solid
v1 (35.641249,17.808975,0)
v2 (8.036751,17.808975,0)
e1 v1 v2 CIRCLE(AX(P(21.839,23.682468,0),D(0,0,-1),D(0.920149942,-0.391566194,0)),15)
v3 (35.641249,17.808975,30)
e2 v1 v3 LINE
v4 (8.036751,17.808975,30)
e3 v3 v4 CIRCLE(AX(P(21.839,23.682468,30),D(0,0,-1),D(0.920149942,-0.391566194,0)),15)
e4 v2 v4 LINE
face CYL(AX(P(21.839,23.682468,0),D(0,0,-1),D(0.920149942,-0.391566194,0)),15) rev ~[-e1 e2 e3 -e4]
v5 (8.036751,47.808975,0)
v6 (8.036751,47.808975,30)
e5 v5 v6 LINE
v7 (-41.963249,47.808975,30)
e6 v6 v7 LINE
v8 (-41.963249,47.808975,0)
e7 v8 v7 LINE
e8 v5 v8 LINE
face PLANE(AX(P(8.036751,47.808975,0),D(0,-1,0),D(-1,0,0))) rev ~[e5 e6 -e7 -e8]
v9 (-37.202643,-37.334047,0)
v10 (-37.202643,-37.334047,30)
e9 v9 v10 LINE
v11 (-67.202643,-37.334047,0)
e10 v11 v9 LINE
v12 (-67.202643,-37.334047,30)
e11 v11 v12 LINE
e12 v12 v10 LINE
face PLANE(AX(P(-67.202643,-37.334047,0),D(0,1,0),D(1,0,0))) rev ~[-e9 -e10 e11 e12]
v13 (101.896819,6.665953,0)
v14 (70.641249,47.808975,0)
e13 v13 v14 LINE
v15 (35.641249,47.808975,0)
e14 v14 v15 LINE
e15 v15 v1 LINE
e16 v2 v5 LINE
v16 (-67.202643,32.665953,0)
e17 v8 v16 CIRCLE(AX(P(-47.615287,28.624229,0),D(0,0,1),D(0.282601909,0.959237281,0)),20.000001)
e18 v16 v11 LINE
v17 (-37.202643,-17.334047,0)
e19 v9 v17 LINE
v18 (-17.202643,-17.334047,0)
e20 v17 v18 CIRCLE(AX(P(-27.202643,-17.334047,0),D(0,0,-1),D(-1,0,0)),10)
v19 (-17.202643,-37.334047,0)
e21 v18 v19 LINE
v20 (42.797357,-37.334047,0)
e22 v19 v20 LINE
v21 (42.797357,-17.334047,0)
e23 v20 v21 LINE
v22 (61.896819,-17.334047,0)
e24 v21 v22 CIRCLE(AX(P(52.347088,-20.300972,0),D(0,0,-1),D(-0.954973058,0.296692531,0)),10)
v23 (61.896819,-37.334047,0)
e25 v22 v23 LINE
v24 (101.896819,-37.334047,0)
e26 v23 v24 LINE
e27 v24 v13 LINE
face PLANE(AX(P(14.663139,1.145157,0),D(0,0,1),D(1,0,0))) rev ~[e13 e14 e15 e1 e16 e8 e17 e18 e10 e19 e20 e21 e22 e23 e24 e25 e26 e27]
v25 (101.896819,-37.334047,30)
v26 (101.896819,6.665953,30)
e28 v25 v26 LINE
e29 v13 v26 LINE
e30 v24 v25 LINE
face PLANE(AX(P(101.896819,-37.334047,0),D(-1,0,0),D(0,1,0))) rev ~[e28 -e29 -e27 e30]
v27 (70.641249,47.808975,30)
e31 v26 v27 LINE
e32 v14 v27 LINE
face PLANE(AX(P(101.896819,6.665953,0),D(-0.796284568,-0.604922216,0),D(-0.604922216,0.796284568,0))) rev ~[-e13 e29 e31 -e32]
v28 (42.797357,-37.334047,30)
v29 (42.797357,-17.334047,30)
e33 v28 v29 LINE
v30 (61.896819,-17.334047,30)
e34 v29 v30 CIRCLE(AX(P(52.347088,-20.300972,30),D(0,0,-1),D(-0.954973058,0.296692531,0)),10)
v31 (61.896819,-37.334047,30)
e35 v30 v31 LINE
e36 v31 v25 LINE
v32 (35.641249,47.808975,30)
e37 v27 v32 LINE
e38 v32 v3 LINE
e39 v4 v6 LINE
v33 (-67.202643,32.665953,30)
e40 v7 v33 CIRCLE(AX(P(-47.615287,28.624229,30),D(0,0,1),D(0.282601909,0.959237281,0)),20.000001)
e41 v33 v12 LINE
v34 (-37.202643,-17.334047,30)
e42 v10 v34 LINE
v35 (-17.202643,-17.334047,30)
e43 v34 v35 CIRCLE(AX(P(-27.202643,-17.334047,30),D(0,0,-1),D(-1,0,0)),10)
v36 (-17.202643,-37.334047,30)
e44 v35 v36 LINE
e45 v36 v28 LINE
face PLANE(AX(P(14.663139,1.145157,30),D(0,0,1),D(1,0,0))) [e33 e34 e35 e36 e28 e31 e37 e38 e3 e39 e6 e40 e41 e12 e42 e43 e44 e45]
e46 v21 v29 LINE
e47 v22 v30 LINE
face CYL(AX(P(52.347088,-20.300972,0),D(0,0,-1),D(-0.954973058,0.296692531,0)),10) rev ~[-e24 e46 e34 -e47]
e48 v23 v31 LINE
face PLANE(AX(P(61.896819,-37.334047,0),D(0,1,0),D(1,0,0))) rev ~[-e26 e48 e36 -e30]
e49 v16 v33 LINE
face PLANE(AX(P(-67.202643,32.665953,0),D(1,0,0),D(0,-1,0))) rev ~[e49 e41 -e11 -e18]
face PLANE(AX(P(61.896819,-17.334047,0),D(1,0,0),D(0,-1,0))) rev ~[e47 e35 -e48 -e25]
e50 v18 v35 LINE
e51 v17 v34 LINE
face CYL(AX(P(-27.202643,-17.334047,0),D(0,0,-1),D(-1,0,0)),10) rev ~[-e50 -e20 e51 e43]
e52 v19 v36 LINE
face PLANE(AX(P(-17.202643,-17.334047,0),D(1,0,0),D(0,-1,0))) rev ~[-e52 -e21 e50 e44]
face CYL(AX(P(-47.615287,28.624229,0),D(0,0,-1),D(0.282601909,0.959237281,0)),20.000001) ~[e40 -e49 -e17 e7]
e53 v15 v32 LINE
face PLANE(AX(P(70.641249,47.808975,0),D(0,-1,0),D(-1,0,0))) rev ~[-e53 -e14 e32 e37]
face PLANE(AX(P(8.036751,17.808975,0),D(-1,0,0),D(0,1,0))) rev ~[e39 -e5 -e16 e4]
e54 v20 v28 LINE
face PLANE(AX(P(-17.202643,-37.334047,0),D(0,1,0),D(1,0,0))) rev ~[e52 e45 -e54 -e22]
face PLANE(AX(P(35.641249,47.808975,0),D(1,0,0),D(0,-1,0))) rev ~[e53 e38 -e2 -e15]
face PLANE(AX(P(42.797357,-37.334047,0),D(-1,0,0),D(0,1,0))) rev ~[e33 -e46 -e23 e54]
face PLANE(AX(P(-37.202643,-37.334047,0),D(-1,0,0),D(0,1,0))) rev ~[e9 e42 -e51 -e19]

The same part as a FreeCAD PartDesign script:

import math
import FreeCAD as App
import Part
import Sketcher

V = App.Vector

doc = App.newDocument("Part")
body = doc.addObject("PartDesign::Body", "Body")

# Sketch on XY plane
sketch1 = body.newObject("Sketcher::SketchObject", "Sketch")
sketch1.AttachmentSupport = (doc.getObject("XY_Plane"), [""])
sketch1.MapMode = "FlatFace"
sketch1.addGeometry([
    Part.LineSegment(V(8, 48, 0), V(-42, 48, 0)),  # 0
    Part.ArcOfCircle(Part.Circle(V(-48, 29, 0), V(0, 0, 1), 20), math.radians(74), math.radians(168)),  # 1
    Part.LineSegment(V(-67, 33, 0), V(-67, -37, 0)),  # 2
    Part.LineSegment(V(-67, -37, 0), V(-37, -37, 0)),  # 3
    Part.LineSegment(V(-37, -37, 0), V(-37, -17, 0)),  # 4
    Part.ArcOfCircle(Part.Circle(V(-27, -17, 0), V(0, 0, 1), 10), math.radians(0), math.radians(180)),  # 5
    Part.LineSegment(V(-17, -17, 0), V(-17, -37, 0)),  # 6
    Part.LineSegment(V(-17, -37, 0), V(43, -37, 0)),  # 7
    Part.LineSegment(V(43, -37, 0), V(43, -17, 0)),  # 8
    Part.ArcOfCircle(Part.Circle(V(52, -20, 0), V(0, 0, 1), 10), math.radians(17), math.radians(163)),  # 9
    Part.LineSegment(V(62, -17, 0), V(62, -37, 0)),  # 10
    Part.LineSegment(V(62, -37, 0), V(102, -37, 0)),  # 11
    Part.LineSegment(V(102, -37, 0), V(102, 7, 0)),  # 12
    Part.LineSegment(V(102, 7, 0), V(71, 48, 0)),  # 13
    Part.LineSegment(V(71, 48, 0), V(36, 48, 0)),  # 14
    Part.LineSegment(V(36, 48, 0), V(36, 18, 0)),  # 15
    Part.ArcOfCircle(Part.Circle(V(22, 24, 0), V(0, 0, 1), 15), math.radians(-157), math.radians(-23)),  # 16
    Part.LineSegment(V(8, 18, 0), V(8, 48, 0)),  # 17
], False)
sketch1.addConstraint([
    Sketcher.Constraint("Coincident", 0, 2, 1, 1),
    Sketcher.Constraint("Coincident", 1, 2, 2, 1),
    Sketcher.Constraint("Coincident", 2, 2, 3, 1),
    Sketcher.Constraint("Coincident", 3, 2, 4, 1),
    Sketcher.Constraint("Tangent", 4, 2, 5, 2),
    Sketcher.Constraint("Tangent", 5, 1, 6, 1),
    Sketcher.Constraint("Coincident", 6, 2, 7, 1),
    Sketcher.Constraint("Coincident", 7, 2, 8, 1),
    Sketcher.Constraint("Coincident", 8, 2, 9, 2),
    Sketcher.Constraint("Coincident", 9, 1, 10, 1),
    Sketcher.Constraint("Coincident", 10, 2, 11, 1),
    Sketcher.Constraint("Coincident", 11, 2, 12, 1),
    Sketcher.Constraint("Coincident", 12, 2, 13, 1),
    Sketcher.Constraint("Coincident", 13, 2, 14, 1),
    Sketcher.Constraint("Coincident", 14, 2, 15, 1),
    Sketcher.Constraint("Coincident", 15, 2, 16, 2),
    Sketcher.Constraint("Coincident", 16, 1, 17, 1),
    Sketcher.Constraint("Coincident", 17, 2, 0, 1),
    Sketcher.Constraint("Horizontal", 0),
    Sketcher.Constraint("Vertical", 2),
    Sketcher.Constraint("Horizontal", 3),
    Sketcher.Constraint("Vertical", 4),
    Sketcher.Constraint("Vertical", 6),
    Sketcher.Constraint("Horizontal", 7),
    Sketcher.Constraint("Vertical", 8),
    Sketcher.Constraint("Vertical", 10),
    Sketcher.Constraint("Horizontal", 11),
    Sketcher.Constraint("Vertical", 12),
    Sketcher.Constraint("Horizontal", 14),
    Sketcher.Constraint("Vertical", 15),
    Sketcher.Constraint("Vertical", 17),
    Sketcher.Constraint("Equal", 5, 9),
    Sketcher.Constraint("Horizontal", 3, 2, 6, 2),
    Sketcher.Constraint("Horizontal", 5, 1, 8, 2),
    Sketcher.Constraint("Horizontal", 8, 2, 9, 1),
    Sketcher.Constraint("Horizontal", 7, 2, 10, 2),
    Sketcher.Constraint("Horizontal", 0, 2, 13, 2),
    Sketcher.Constraint("Horizontal", 15, 2, 16, 1),
    Sketcher.Constraint("Equal", 3, 15),
    Sketcher.Constraint("Radius", 1, 20.000001),
    Sketcher.Constraint("Radius", 5, 10.0),
    Sketcher.Constraint("Radius", 16, 15.0),
    Sketcher.Constraint("DistanceX", 0, 2, 0, 1, 50.0),
    Sketcher.Constraint("DistanceX", 3, 1, 3, 2, 30.0),
    Sketcher.Constraint("DistanceX", 7, 1, 7, 2, 60.0),
    Sketcher.Constraint("DistanceX", 11, 1, 11, 2, 40.0),
    Sketcher.Constraint("DistanceX", 14, 2, 14, 1, 35.0),
    Sketcher.Constraint("DistanceY", 2, 2, 2, 1, 70.0),
    Sketcher.Constraint("DistanceY", 4, 1, 4, 2, 20.0),
    Sketcher.Constraint("DistanceY", 12, 1, 12, 2, 44.0),
    Sketcher.Constraint("DistanceX", -1, 1, 16, 3, 21.839),
    Sketcher.Constraint("DistanceY", 9, 3, 1, 3, 48.925201),
    Sketcher.Constraint("DistanceX", 16, 1, 15, 2, 27.604498),
    Sketcher.Constraint("DistanceY", -1, 1, 1, 3, 28.624229),
    Sketcher.Constraint("DistanceX", -1, 1, 9, 1, 61.896819),
    Sketcher.Constraint("DistanceX", 5, 3, 9, 3, 79.549731),
])
pad1 = body.newObject("PartDesign::Pad", "Pad")
pad1.Profile = sketch1
pad1.Length = 30

doc.recompute()
